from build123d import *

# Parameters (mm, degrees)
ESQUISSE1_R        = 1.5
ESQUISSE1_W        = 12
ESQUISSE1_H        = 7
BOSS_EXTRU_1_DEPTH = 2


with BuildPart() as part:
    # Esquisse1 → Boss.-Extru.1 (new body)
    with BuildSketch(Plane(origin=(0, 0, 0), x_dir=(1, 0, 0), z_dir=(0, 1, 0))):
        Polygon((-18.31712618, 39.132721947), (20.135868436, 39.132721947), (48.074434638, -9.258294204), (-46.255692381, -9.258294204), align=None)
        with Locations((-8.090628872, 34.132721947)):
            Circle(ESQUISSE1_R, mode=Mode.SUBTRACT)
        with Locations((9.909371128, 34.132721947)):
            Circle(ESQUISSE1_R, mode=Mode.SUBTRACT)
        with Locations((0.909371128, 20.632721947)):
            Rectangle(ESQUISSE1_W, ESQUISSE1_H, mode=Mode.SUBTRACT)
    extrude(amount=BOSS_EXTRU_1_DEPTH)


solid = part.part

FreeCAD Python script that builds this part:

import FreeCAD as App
import Part
import Sketcher
from FreeCAD import Vector
Q = App.Units.Quantity

doc = App.newDocument("Part")
params = doc.addObject("Spreadsheet::Sheet", "Params")
for row, (alias, value) in enumerate([
    ("sketch1_diameter", "3 mm"),
    ("sketch1_width", "12 mm"),
    ("sketch1_height", "7 mm"),
    ("pad1_length", "2 mm"),
], start=1):
    params.set(f"A{row}", alias)
    params.set(f"B{row}", "=" + value)
    params.setAlias(f"B{row}", alias)

body = doc.addObject("PartDesign::Body", "Body")

# Sketch on XZ plane
sketch1 = body.newObject("Sketcher::SketchObject", "Sketch")
sketch1.AttachmentSupport = (doc.getObject("XZ_Plane"), [""])
sketch1.MapMode = "FlatFace"
sketch1.addGeometry(Part.LineSegment(Vector(20.1, -39.1, 0), Vector(-18.3, -39.1, 0)), False)
sketch1.addGeometry(Part.LineSegment(Vector(-18.3, -39.1, 0), Vector(-46.3, 9.3, 0)), False)
sketch1.addGeometry(Part.LineSegment(Vector(-46.3, 9.3, 0), Vector(48.1, 9.3, 0)), False)
sketch1.addGeometry(Part.LineSegment(Vector(48.1, 9.3, 0), Vector(20.1, -39.1, 0)), False)
sketch1.addGeometry(Part.LineSegment(Vector(-5.1, -17.1, 0), Vector(-5.1, -24.1, 0)), False)
sketch1.addGeometry(Part.LineSegment(Vector(-5.1, -24.1, 0), Vector(6.9, -24.1, 0)), False)
sketch1.addGeometry(Part.LineSegment(Vector(6.9, -24.1, 0), Vector(6.9, -17.1, 0)), False)
sketch1.addGeometry(Part.LineSegment(Vector(6.9, -17.1, 0), Vector(-5.1, -17.1, 0)), False)
sketch1.addGeometry(Part.Circle(Vector(9.9, -34.1, 0), Vector(0, 0, 1), 1.5), False)
sketch1.addGeometry(Part.Circle(Vector(-8.1, -34.1, 0), Vector(0, 0, 1), 1.5), False)
sketch1.addConstraint(Sketcher.Constraint("Coincident", 0, 2, 1, 1))
sketch1.addConstraint(Sketcher.Constraint("Coincident", 1, 2, 2, 1))
sketch1.addConstraint(Sketcher.Constraint("Coincident", 2, 2, 3, 1))
sketch1.addConstraint(Sketcher.Constraint("Coincident", 3, 2, 0, 1))
sketch1.addConstraint(Sketcher.Constraint("Coincident", 4, 2, 5, 1))
sketch1.addConstraint(Sketcher.Constraint("Coincident", 5, 2, 6, 1))
sketch1.addConstraint(Sketcher.Constraint("Coincident", 6, 2, 7, 1))
sketch1.addConstraint(Sketcher.Constraint("Coincident", 7, 2, 4, 1))
sketch1.addConstraint(Sketcher.Constraint("Horizontal", 0))
sketch1.addConstraint(Sketcher.Constraint("Horizontal", 2))
sketch1.addConstraint(Sketcher.Constraint("Vertical", 4))
sketch1.addConstraint(Sketcher.Constraint("Horizontal", 5))
sketch1.addConstraint(Sketcher.Constraint("Vertical", 6))
sketch1.addConstraint(Sketcher.Constraint("Horizontal", 7))
sketch1.addConstraint(Sketcher.Constraint("Equal", 8, 9))
sketch1.addConstraint(Sketcher.Constraint("Horizontal", 8, 3, 9, 3))
sketch1.addConstraint(Sketcher.Constraint("Equal", 1, 3))
sketch1.addConstraint(Sketcher.Constraint("Diameter", 8, Q("3 mm")))
sketch1.addConstraint(Sketcher.Constraint("DistanceX", 5, 1, 5, 2, Q("12 mm")))
sketch1.addConstraint(Sketcher.Constraint("DistanceY", 4, 2, 4, 1, Q("7 mm")))
sketch1.addConstraint(Sketcher.Constraint("Angle", 1, Q("120 deg")))
sketch1.addConstraint(Sketcher.Constraint("DistanceX", 9, 3, 8, 3, Q("18 mm")))
sketch1.addConstraint(Sketcher.Constraint("DistanceY", 0, 2, 9, 3, Q("5 mm")))
sketch1.addConstraint(Sketcher.Constraint("DistanceX", 9, 3, 4, 2, Q("3 mm")))
sketch1.addConstraint(Sketcher.Constraint("DistanceY", 9, 3, 4, 2, Q("10 mm")))
sketch1.addConstraint(Sketcher.Constraint("DistanceX", 0, 2, 0, 1, Q("38.452995 mm")))
sketch1.addConstraint(Sketcher.Constraint("DistanceX", 2, 1, 2, 2, Q("94.330127 mm")))
sketch1.addConstraint(Sketcher.Constraint("DistanceX", -1, 1, 8, 3, Q("9.909371 mm")))
sketch1.addConstraint(Sketcher.Constraint("DistanceY", 8, 3, -1, 1, Q("34.132722 mm")))
sketch1.addConstraint(Sketcher.Constraint("DistanceX", -1, 1, 3, 2, Q("20.135868 mm")))
sketch1.setExpression("Constraints[17]", "Params.sketch1_diameter")
sketch1.setExpression("Constraints[18]", "Params.sketch1_width")
sketch1.setExpression("Constraints[19]", "Params.sketch1_height")
pad1 = body.newObject("PartDesign::Pad", "Pad")
pad1.Profile = sketch1
pad1.setExpression("Length", "Params.pad1_length")
pad1.Reversed = True

doc.recompute()
